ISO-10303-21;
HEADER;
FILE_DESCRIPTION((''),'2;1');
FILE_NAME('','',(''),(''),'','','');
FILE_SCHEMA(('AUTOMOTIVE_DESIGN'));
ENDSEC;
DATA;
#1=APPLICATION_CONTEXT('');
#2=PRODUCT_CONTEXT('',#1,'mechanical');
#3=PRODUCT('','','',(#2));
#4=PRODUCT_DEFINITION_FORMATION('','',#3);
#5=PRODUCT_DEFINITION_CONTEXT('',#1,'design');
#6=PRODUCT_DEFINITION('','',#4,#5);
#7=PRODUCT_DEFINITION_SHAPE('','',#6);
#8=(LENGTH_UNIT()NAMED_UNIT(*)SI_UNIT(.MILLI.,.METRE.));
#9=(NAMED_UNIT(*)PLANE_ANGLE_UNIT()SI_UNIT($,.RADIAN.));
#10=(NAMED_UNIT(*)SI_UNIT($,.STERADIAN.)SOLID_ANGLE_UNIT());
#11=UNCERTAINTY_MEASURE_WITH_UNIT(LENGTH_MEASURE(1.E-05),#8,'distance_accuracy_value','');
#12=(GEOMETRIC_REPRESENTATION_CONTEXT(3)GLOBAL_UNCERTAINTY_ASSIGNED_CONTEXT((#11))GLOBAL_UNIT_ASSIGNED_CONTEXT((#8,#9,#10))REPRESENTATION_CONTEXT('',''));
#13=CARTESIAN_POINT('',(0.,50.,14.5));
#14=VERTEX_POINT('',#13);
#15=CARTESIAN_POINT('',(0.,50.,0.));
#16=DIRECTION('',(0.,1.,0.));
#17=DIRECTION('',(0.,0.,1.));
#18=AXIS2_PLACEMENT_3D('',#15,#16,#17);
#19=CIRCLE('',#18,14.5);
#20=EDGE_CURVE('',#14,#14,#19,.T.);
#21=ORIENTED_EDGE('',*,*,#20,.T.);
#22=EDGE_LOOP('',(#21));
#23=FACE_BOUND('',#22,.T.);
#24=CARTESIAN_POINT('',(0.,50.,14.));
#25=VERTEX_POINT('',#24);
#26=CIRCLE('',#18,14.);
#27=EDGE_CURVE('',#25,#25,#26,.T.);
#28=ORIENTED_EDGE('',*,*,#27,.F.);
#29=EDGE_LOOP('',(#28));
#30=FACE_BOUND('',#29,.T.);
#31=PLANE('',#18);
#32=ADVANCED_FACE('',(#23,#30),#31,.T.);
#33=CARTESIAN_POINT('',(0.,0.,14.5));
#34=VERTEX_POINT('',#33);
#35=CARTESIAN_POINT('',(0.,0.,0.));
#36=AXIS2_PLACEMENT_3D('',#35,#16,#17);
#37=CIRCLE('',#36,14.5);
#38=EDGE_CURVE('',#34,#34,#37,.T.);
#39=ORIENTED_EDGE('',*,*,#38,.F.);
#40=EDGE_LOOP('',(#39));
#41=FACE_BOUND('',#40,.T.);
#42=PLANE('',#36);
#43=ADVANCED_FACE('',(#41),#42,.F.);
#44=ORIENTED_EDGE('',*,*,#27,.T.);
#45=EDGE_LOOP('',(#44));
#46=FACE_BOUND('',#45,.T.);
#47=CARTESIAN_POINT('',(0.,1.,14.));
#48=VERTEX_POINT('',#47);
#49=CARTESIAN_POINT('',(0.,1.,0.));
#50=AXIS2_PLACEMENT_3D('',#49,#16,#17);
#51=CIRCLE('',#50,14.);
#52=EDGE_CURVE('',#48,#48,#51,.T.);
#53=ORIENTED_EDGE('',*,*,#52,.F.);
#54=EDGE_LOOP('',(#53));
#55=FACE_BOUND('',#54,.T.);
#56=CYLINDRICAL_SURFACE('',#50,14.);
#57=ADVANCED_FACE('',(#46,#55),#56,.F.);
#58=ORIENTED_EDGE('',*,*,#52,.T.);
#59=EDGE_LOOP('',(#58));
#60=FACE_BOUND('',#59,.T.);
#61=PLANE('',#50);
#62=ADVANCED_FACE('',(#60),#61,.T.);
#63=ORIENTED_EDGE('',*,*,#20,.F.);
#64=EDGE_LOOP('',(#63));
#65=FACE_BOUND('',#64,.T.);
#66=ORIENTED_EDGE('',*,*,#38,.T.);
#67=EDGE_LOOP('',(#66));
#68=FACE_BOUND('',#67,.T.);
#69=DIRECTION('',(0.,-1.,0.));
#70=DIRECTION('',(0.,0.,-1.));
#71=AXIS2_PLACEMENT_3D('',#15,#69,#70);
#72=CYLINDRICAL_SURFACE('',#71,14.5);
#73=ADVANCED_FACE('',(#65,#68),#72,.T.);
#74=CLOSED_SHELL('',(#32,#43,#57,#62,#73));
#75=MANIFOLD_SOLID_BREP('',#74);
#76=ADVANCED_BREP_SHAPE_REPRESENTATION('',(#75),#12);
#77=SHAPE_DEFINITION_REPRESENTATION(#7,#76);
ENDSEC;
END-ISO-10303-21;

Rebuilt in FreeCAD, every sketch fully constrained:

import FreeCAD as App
import Part
import Sketcher

V = App.Vector
Q = App.Units.Quantity

doc = App.newDocument("Part")
body = doc.addObject("PartDesign::Body", "Body")

sketch1 = body.newObject("Sketcher::SketchObject", "Sketch")
sketch1.AttachmentSupport = (doc.getObject("XZ_Plane"), [""])
sketch1.MapMode = "FlatFace"
sketch1.addGeometry(Part.Circle(V(0, 0, 0), V(0, 0, 1), 14), False)
sketch1.addConstraint([
    Sketcher.Constraint("Coincident", 0, 3, -1, 1),
    Sketcher.Constraint("Diameter", 0, Q("29 mm")),
])
pad1 = body.newObject("PartDesign::Pad", "Pad")
pad1.Profile = sketch1
pad1.Length = 50
pad1.Reversed = True

sketch2 = body.newObject("Sketcher::SketchObject", "Sketch001")
sketch2.AttachmentSupport = (doc.getObject("XZ_Plane"), [""])
sketch2.MapMode = "FlatFace"
sketch2.AttachmentOffset = App.Placement(V(0, 0, -50), App.Rotation())
sketch2.addGeometry(Part.Circle(V(0, 0, 0), V(0, 0, 1), 14), False)
sketch2.addConstraint([
    Sketcher.Constraint("Coincident", 0, 3, -1, 1),
    Sketcher.Constraint("Diameter", 0, Q("28 mm")),
])
pocket1 = body.newObject("PartDesign::Pocket", "Pocket")
pocket1.Profile = sketch2
pocket1.Length = 49
pocket1.Reversed = True

doc.recompute()
